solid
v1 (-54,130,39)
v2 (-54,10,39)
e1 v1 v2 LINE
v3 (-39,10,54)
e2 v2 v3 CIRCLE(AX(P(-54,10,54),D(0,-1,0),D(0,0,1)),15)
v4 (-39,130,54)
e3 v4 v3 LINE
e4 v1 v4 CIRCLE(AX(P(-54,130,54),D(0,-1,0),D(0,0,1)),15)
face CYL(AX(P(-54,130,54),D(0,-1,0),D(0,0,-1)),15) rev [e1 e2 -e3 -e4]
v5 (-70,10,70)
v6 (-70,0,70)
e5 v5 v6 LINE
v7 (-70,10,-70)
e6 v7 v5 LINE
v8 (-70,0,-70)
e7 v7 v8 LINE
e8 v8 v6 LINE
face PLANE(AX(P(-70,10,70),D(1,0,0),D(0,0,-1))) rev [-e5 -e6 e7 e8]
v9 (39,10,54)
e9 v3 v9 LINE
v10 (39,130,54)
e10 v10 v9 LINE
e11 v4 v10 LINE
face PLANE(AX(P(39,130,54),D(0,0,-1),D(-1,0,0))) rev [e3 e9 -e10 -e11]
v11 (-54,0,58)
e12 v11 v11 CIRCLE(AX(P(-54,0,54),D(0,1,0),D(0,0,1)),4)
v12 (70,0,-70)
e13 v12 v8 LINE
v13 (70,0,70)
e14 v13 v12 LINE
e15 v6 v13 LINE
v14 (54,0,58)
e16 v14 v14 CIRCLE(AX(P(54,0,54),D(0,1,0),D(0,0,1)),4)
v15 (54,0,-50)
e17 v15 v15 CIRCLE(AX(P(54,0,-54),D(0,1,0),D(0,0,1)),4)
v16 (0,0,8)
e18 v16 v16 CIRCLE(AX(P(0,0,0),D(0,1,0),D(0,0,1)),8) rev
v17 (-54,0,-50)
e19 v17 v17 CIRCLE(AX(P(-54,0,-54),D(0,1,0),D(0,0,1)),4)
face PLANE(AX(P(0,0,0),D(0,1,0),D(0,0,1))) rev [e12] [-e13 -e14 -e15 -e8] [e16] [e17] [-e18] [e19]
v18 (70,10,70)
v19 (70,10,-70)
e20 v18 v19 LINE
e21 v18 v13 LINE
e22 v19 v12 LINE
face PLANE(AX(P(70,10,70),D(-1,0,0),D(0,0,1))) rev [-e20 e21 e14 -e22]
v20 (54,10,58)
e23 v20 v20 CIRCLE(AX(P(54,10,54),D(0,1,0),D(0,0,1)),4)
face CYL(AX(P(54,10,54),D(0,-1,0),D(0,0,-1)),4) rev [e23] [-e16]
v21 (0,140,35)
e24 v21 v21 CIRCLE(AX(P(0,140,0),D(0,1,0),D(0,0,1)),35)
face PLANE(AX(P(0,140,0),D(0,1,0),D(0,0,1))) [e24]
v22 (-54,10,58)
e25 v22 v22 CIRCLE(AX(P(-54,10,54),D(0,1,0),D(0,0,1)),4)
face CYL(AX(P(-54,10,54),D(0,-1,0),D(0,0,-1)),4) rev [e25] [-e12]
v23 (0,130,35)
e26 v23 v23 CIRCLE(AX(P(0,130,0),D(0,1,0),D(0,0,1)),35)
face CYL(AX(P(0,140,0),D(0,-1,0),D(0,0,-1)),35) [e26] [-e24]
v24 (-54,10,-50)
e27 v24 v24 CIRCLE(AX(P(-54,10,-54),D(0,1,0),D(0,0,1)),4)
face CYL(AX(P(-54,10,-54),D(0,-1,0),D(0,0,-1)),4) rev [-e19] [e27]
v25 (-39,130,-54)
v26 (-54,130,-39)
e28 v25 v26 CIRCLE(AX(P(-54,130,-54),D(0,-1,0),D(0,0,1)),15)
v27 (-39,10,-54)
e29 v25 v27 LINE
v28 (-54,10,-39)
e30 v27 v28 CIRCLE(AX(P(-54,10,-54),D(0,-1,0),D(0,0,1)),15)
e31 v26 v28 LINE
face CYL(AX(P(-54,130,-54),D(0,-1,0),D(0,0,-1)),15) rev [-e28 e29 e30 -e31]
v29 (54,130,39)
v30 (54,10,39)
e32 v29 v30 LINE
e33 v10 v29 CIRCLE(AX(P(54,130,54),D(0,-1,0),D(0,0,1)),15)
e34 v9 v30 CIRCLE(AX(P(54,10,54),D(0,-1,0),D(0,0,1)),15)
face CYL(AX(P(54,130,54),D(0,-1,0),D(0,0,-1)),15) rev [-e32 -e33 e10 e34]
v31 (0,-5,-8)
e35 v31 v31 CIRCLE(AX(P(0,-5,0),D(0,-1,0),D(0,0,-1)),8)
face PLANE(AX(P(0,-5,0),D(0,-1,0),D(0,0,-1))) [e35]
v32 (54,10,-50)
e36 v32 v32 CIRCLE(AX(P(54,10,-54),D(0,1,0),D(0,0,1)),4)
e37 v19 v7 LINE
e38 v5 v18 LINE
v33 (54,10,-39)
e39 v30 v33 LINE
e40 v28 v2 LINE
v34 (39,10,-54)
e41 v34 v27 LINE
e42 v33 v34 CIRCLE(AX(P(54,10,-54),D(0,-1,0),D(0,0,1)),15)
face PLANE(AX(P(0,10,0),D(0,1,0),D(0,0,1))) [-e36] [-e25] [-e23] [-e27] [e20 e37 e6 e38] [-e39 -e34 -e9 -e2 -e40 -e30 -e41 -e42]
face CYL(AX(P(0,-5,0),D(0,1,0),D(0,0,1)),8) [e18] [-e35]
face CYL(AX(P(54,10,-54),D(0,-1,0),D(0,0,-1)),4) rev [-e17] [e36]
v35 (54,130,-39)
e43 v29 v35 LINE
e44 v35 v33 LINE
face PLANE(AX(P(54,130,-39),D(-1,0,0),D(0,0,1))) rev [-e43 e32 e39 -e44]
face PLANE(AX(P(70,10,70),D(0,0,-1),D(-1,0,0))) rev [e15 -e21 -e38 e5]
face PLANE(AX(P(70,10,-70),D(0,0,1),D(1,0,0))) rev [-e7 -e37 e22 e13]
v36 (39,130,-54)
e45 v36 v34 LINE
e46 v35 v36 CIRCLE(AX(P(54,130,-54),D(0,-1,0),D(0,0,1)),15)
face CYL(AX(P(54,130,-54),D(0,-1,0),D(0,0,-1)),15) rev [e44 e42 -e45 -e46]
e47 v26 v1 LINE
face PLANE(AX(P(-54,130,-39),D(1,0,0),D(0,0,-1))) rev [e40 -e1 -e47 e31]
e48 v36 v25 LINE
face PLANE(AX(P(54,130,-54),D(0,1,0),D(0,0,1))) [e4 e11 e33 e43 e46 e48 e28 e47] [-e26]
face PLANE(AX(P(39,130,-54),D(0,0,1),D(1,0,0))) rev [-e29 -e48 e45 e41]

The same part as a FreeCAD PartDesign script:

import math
import FreeCAD as App
import Part
import Sketcher

V = App.Vector
Q = App.Units.Quantity

doc = App.newDocument("Part")
body = doc.addObject("PartDesign::Body", "Body")

# Sketch on XZ plane
sketch1 = body.newObject("Sketcher::SketchObject", "Sketch")
sketch1.AttachmentSupport = (doc.getObject("XZ_Plane"), [""])
sketch1.MapMode = "FlatFace"
sketch1.addGeometry(Part.LineSegment(V(-70, -70, 0), V(-70, 70, 0)), False)
sketch1.addGeometry(Part.LineSegment(V(-70, 70, 0), V(70, 70, 0)), False)
sketch1.addGeometry(Part.LineSegment(V(70, 70, 0), V(70, -70, 0)), False)
sketch1.addGeometry(Part.LineSegment(V(70, -70, 0), V(-70, -70, 0)), False)
sketch1.addGeometry(Part.Circle(V(-54, 54, 0), V(0, 0, 1), 4), False)
sketch1.addGeometry(Part.Circle(V(54, 54, 0), V(0, 0, 1), 4), False)
sketch1.addGeometry(Part.Circle(V(-54, -54, 0), V(0, 0, 1), 4), False)
sketch1.addGeometry(Part.Circle(V(54, -54, 0), V(0, 0, 1), 4), False)
sketch1.addConstraint(Sketcher.Constraint("Coincident", 0, 2, 1, 1))
sketch1.addConstraint(Sketcher.Constraint("Coincident", 1, 2, 2, 1))
sketch1.addConstraint(Sketcher.Constraint("Coincident", 2, 2, 3, 1))
sketch1.addConstraint(Sketcher.Constraint("Coincident", 3, 2, 0, 1))
sketch1.addConstraint(Sketcher.Constraint("Vertical", 0))
sketch1.addConstraint(Sketcher.Constraint("Horizontal", 1))
sketch1.addConstraint(Sketcher.Constraint("Vertical", 2))
sketch1.addConstraint(Sketcher.Constraint("Horizontal", 3))
sketch1.addConstraint(Sketcher.Constraint("Equal", 4, 5))
sketch1.addConstraint(Sketcher.Constraint("Equal", 5, 6))
sketch1.addConstraint(Sketcher.Constraint("Equal", 6, 7))
sketch1.addConstraint(Sketcher.Constraint("Symmetric", 5, 3, 6, 3, -1, 1))
sketch1.addConstraint(Sketcher.Constraint("Symmetric", 4, 3, 7, 3, -1, 1))
sketch1.addConstraint(Sketcher.Constraint("Symmetric", 0, 2, 2, 2, -1, 1))
sketch1.addConstraint(Sketcher.Constraint("Symmetric", 4, 3, 5, 3, -2))
sketch1.addConstraint(Sketcher.Constraint("Equal", 3, 0))
sketch1.addConstraint(Sketcher.Constraint("Diameter", 4, Q("8 mm")))
sketch1.addConstraint(Sketcher.Constraint("DistanceX", 1, 1, 1, 2, Q("140 mm")))
sketch1.addConstraint(Sketcher.Constraint("DistanceX", 4, 3, -1, 1, Q("54 mm")))
sketch1.addConstraint(Sketcher.Constraint("DistanceY", -1, 1, 4, 3, Q("54 mm")))
pad1 = body.newObject("PartDesign::Pad", "Pad")
pad1.Profile = sketch1
pad1.Length = 10
pad1.Reversed = True

# Sketch on XZ plane
sketch2 = body.newObject("Sketcher::SketchObject", "Sketch001")
sketch2.AttachmentSupport = (doc.getObject("XZ_Plane"), [""])
sketch2.MapMode = "FlatFace"
sketch2.AttachmentOffset = App.Placement(V(0, 0, -10), App.Rotation())
sketch2.addGeometry(Part.LineSegment(V(39, -54, 0), V(-39, -54, 0)), False)
sketch2.addGeometry(Part.ArcOfCircle(Part.Circle(V(-54, -54, 0), V(0, 0, 1), 15), math.radians(0), math.radians(90)), False)
sketch2.addGeometry(Part.LineSegment(V(-54, -39, 0), V(-54, 39, 0)), False)
sketch2.addGeometry(Part.ArcOfCircle(Part.Circle(V(-54, 54, 0), V(0, 0, 1), 15), math.radians(-90), math.radians(0)), False)
sketch2.addGeometry(Part.LineSegment(V(-39, 54, 0), V(39, 54, 0)), False)
sketch2.addGeometry(Part.ArcOfCircle(Part.Circle(V(54, 54, 0), V(0, 0, 1), 15), math.radians(180), math.radians(270)), False)
sketch2.addGeometry(Part.LineSegment(V(54, 39, 0), V(54, -39, 0)), False)
sketch2.addGeometry(Part.ArcOfCircle(Part.Circle(V(54, -54, 0), V(0, 0, 1), 15), math.radians(90), math.radians(180)), False)
sketch2.addConstraint(Sketcher.Constraint("Coincident", 0, 2, 1, 1))
sketch2.addConstraint(Sketcher.Constraint("Coincident", 1, 2, 2, 1))
sketch2.addConstraint(Sketcher.Constraint("Coincident", 2, 2, 3, 1))
sketch2.addConstraint(Sketcher.Constraint("Coincident", 3, 2, 4, 1))
sketch2.addConstraint(Sketcher.Constraint("Coincident", 4, 2, 5, 1))
sketch2.addConstraint(Sketcher.Constraint("Coincident", 5, 2, 6, 1))
sketch2.addConstraint(Sketcher.Constraint("Coincident", 6, 2, 7, 1))
sketch2.addConstraint(Sketcher.Constraint("Coincident", 7, 2, 0, 1))
sketch2.addConstraint(Sketcher.Constraint("Horizontal", 0))
sketch2.addConstraint(Sketcher.Constraint("Vertical", 2))
sketch2.addConstraint(Sketcher.Constraint("Horizontal", 4))
sketch2.addConstraint(Sketcher.Constraint("Vertical", 6))
sketch2.addConstraint(Sketcher.Constraint("Equal", 1, 3))
sketch2.addConstraint(Sketcher.Constraint("Equal", 3, 5))
sketch2.addConstraint(Sketcher.Constraint("Equal", 5, 7))
sketch2.addConstraint(Sketcher.Constraint("Symmetric", 1, 3, 5, 3, -1, 1))
sketch2.addConstraint(Sketcher.Constraint("Symmetric", 3, 3, 7, 3, -1, 1))
sketch2.addConstraint(Sketcher.Constraint("Symmetric", 3, 3, 5, 3, -2))
sketch2.addConstraint(Sketcher.Constraint("Horizontal", 7, 3, 0, 2))
sketch2.addConstraint(Sketcher.Constraint("Horizontal", 5, 3, 3, 2))
sketch2.addConstraint(Sketcher.Constraint("Vertical", 3, 3, 1, 2))
sketch2.addConstraint(Sketcher.Constraint("Vertical", 7, 3, 5, 2))
sketch2.addConstraint(Sketcher.Constraint("Equal", 4, 2))
sketch2.addConstraint(Sketcher.Constraint("Radius", 1, Q("15 mm")))
sketch2.addConstraint(Sketcher.Constraint("DistanceX", 0, 2, 0, 1, Q("78 mm")))
pad2 = body.newObject("PartDesign::Pad", "Pad001")
pad2.Profile = sketch2
pad2.Length = 120
pad2.Reversed = True

# Sketch on XZ plane
sketch3 = body.newObject("Sketcher::SketchObject", "Sketch002")
sketch3.AttachmentSupport = (doc.getObject("XZ_Plane"), [""])
sketch3.MapMode = "FlatFace"
sketch3.AttachmentOffset = App.Placement(V(0, 0, -130), App.Rotation())
sketch3.addGeometry(Part.Circle(V(0, 0, 0), V(0, 0, 1), 35), False)
sketch3.addConstraint(Sketcher.Constraint("Coincident", 0, 3, -1, 1))
sketch3.addConstraint(Sketcher.Constraint("Diameter", 0, Q("70 mm")))
pad3 = body.newObject("PartDesign::Pad", "Pad002")
pad3.Profile = sketch3
pad3.Length = 10
pad3.Reversed = True

# Sketch on XZ plane
sketch4 = body.newObject("Sketcher::SketchObject", "Sketch003")
sketch4.AttachmentSupport = (doc.getObject("XZ_Plane"), [""])
sketch4.MapMode = "FlatFace"
sketch4.addGeometry(Part.Circle(V(0, 0, 0), V(0, 0, 1), 8), False)
sketch4.addConstraint(Sketcher.Constraint("Coincident", 0, 3, -1, 1))
sketch4.addConstraint(Sketcher.Constraint("Diameter", 0, Q("16 mm")))
pad4 = body.newObject("PartDesign::Pad", "Pad003")
pad4.Profile = sketch4
pad4.Length = 5

doc.recompute()
